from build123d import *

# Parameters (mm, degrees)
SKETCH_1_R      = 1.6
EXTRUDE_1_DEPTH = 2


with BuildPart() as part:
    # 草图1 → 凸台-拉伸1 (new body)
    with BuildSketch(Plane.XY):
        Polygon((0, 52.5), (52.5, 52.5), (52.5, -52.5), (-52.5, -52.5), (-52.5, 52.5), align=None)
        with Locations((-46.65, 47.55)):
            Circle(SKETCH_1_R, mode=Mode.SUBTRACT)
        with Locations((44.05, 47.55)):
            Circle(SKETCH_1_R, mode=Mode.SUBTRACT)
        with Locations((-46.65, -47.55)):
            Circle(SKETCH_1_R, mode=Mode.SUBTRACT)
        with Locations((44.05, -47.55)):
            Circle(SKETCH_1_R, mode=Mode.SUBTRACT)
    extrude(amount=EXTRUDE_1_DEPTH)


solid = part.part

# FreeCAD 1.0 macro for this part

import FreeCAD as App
import Part
import Sketcher
from FreeCAD import Vector


def add_polygon(sketch, points):
    """Adds a closed chain of lines whose ends are joined by coincident constraints."""
    first, n = sketch.GeometryCount, len(points)
    for a, b in zip(points, points[1:] + points[:1]):
        sketch.addGeometry(Part.LineSegment(App.Vector(*a, 0), App.Vector(*b, 0)), False)
    for i in range(n):
        sketch.addConstraint(Sketcher.Constraint("Coincident", first + i, 2, first + (i + 1) % n, 1))

doc = App.newDocument("Part")
params = doc.addObject("Spreadsheet::Sheet", "Params")
for row, (alias, value) in enumerate([
    ("sketch1_diameter", "3.2 mm"),
    ("sketch1_width", "105 mm"),
    ("pad1_length", "2 mm"),
], start=1):
    params.set(f"A{row}", alias)
    params.set(f"B{row}", "=" + value)
    params.setAlias(f"B{row}", alias)

body = doc.addObject("PartDesign::Body", "Body")

# Sketch on XY plane
sketch1 = body.newObject("Sketcher::SketchObject", "Sketch")
sketch1.AttachmentSupport = (doc.getObject("XY_Plane"), [""])
sketch1.MapMode = "FlatFace"
add_polygon(sketch1, [(52.5, 52.5), (-52.5, 52.5), (-52.5, -52.5), (52.5, -52.5)])  # lines 0-3
sketch1.addGeometry(Part.Circle(Vector(44.05, -47.55, 0), Vector(0, 0, 1), 1.6), False)  # 4
sketch1.addGeometry(Part.Circle(Vector(-46.65, -47.55, 0), Vector(0, 0, 1), 1.6), False)  # 5
sketch1.addGeometry(Part.Circle(Vector(44.05, 47.55, 0), Vector(0, 0, 1), 1.6), False)  # 6
sketch1.addGeometry(Part.Circle(Vector(-46.65, 47.55, 0), Vector(0, 0, 1), 1.6), False)  # 7
sketch1.addConstraint(Sketcher.Constraint("Horizontal", 0))
sketch1.addConstraint(Sketcher.Constraint("Vertical", 1))
sketch1.addConstraint(Sketcher.Constraint("Horizontal", 2))
sketch1.addConstraint(Sketcher.Constraint("Vertical", 3))
sketch1.addConstraint(Sketcher.Constraint("Equal", 4, 5))
sketch1.addConstraint(Sketcher.Constraint("Equal", 5, 6))
sketch1.addConstraint(Sketcher.Constraint("Equal", 6, 7))
sketch1.addConstraint(Sketcher.Constraint("Symmetric", 0, 2, 2, 2, -1, 1))
sketch1.addConstraint(Sketcher.Constraint("Symmetric", 4, 3, 6, 3, -1))
sketch1.addConstraint(Sketcher.Constraint("Symmetric", 5, 3, 7, 3, -1))
sketch1.addConstraint(Sketcher.Constraint("Horizontal", 4, 3, 5, 3))
sketch1.addConstraint(Sketcher.Constraint("Equal", 2, 1))
sketch1.addConstraint(Sketcher.Constraint("Diameter", 4, 3.2))
sketch1.addConstraint(Sketcher.Constraint("DistanceX", 0, 2, 0, 1, 105.0))
sketch1.addConstraint(Sketcher.Constraint("DistanceX", 5, 3, 4, 3, 90.7))
sketch1.addConstraint(Sketcher.Constraint("DistanceY", 4, 3, 6, 3, 95.1))
sketch1.addConstraint(Sketcher.Constraint("DistanceX", -1, 1, 4, 3, 44.05))
sketch1.setExpression("Constraints[16]", "Params.sketch1_diameter")
sketch1.setExpression("Constraints[17]", "Params.sketch1_width")
pad1 = body.newObject("PartDesign::Pad", "Pad")
pad1.Profile = sketch1
pad1.setExpression("Length", "Params.pad1_length")

doc.recompute()
